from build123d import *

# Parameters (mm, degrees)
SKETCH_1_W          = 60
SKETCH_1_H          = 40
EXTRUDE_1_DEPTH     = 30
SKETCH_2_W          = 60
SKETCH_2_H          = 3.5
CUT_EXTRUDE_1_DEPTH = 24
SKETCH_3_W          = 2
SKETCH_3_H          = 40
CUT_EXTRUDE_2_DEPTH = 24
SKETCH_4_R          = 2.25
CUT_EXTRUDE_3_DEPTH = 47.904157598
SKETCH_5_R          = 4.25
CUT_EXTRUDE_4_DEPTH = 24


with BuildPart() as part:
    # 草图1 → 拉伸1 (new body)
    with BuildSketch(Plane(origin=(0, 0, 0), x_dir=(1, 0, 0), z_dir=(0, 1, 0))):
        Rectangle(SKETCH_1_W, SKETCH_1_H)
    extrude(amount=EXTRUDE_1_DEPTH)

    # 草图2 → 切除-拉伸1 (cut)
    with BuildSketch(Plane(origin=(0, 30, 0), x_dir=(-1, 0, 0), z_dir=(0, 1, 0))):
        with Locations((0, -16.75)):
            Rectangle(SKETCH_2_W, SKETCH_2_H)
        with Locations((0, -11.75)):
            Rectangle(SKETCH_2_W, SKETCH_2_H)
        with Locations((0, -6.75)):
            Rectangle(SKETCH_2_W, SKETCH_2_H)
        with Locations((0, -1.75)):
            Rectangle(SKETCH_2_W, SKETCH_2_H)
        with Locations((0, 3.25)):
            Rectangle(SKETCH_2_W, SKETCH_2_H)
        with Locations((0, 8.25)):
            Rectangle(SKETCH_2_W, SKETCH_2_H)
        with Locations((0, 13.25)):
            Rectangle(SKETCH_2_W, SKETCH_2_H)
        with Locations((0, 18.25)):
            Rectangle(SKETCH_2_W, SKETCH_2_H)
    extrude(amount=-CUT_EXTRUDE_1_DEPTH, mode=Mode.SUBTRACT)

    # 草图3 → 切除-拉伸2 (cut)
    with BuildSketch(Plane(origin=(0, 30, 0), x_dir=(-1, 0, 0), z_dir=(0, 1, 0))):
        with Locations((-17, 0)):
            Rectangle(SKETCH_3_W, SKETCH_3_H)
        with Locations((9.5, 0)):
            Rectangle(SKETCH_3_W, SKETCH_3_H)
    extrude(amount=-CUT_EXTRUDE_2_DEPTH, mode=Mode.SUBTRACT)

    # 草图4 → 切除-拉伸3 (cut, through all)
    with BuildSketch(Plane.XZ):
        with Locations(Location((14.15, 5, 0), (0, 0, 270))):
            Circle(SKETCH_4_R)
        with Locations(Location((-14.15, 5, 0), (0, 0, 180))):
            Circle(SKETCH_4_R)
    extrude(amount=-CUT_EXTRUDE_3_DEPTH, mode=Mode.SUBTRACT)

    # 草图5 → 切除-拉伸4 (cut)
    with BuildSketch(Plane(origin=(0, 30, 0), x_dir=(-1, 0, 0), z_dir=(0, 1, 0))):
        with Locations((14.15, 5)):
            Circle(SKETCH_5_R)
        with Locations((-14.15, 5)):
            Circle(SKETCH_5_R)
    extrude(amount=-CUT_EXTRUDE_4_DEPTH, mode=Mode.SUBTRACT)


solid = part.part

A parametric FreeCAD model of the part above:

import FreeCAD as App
import Part
import Sketcher
from FreeCAD import Vector


def add_polygon(sketch, points):
    """Adds a closed chain of lines whose ends are joined by coincident constraints."""
    first, n = sketch.GeometryCount, len(points)
    for a, b in zip(points, points[1:] + points[:1]):
        sketch.addGeometry(Part.LineSegment(App.Vector(*a, 0), App.Vector(*b, 0)), False)
    for i in range(n):
        sketch.addConstraint(Sketcher.Constraint("Coincident", first + i, 2, first + (i + 1) % n, 1))

doc = App.newDocument("Part")
params = doc.addObject("Spreadsheet::Sheet", "Params")
for row, (alias, value) in enumerate([
    ("sketch1_width", "60 mm"),
    ("sketch1_height", "40 mm"),
    ("pad1_length", "30 mm"),
    ("sketch2_width", "60 mm"),
    ("sketch2_height", "3.5 mm"),
    ("pocket1_length", "24 mm"),
    ("sketch3_width", "2 mm"),
    ("sketch3_height", "40 mm"),
    ("pocket2_length", "24 mm"),
    ("sketch4_diameter", "4.5 mm"),
    ("sketch5_diameter", "8.5 mm"),
    ("pocket4_length", "24 mm"),
], start=1):
    params.set(f"A{row}", alias)
    params.set(f"B{row}", "=" + value)
    params.setAlias(f"B{row}", alias)

body = doc.addObject("PartDesign::Body", "Body")

# Sketch on XZ plane
sketch1 = body.newObject("Sketcher::SketchObject", "Sketch")
sketch1.AttachmentSupport = (doc.getObject("XZ_Plane"), [""])
sketch1.MapMode = "FlatFace"
add_polygon(sketch1, [(-30, -20), (-30, 20), (30, 20), (30, -20)])  # lines 0-3
sketch1.addConstraint([
    Sketcher.Constraint("Vertical", 0),
    Sketcher.Constraint("Horizontal", 1),
    Sketcher.Constraint("Vertical", 2),
    Sketcher.Constraint("Horizontal", 3),
    Sketcher.Constraint("Symmetric", 0, 2, 2, 2, -1, 1),
    Sketcher.Constraint("DistanceX", 1, 1, 1, 2, 60.0),
    Sketcher.Constraint("DistanceY", 0, 1, 0, 2, 40.0),
])
sketch1.setExpression("Constraints[9]", "Params.sketch1_width")
sketch1.setExpression("Constraints[10]", "Params.sketch1_height")
pad1 = body.newObject("PartDesign::Pad", "Pad")
pad1.Profile = sketch1
pad1.setExpression("Length", "Params.pad1_length")
pad1.Reversed = True

# Sketch on XZ plane
sketch2 = body.newObject("Sketcher::SketchObject", "Sketch001")
sketch2.AttachmentSupport = (doc.getObject("XZ_Plane"), [""])
sketch2.MapMode = "FlatFace"
sketch2.AttachmentOffset = App.Placement(Vector(0, 0, -30), App.Rotation())
add_polygon(sketch2, [(30, -15), (30, -18.5), (-30, -18.5), (-30, -15)])  # lines 0-3
add_polygon(sketch2, [(30, -10), (30, -13.5), (-30, -13.5), (-30, -10)])  # lines 4-7
add_polygon(sketch2, [(30, -5), (30, -8.5), (-30, -8.5), (-30, -5)])  # lines 8-11
add_polygon(sketch2, [(30, 0), (30, -3.5), (-30, -3.5), (-30, 0)])  # lines 12-15
add_polygon(sketch2, [(30, 5), (30, 1.5), (-30, 1.5), (-30, 5)])  # lines 16-19
add_polygon(sketch2, [(30, 10), (30, 6.5), (-30, 6.5), (-30, 10)])  # lines 20-23
add_polygon(sketch2, [(30, 15), (30, 11.5), (-30, 11.5), (-30, 15)])  # lines 24-27
add_polygon(sketch2, [(30, 20), (30, 16.5), (-30, 16.5), (-30, 20)])  # lines 28-31
sketch2.addConstraint([
    Sketcher.Constraint("Vertical", 0),
    Sketcher.Constraint("Horizontal", 1),
    Sketcher.Constraint("Vertical", 2),
    Sketcher.Constraint("Horizontal", 3),
    Sketcher.Constraint("Vertical", 4),
    Sketcher.Constraint("Horizontal", 5),
    Sketcher.Constraint("Vertical", 6),
    Sketcher.Constraint("Horizontal", 7),
    Sketcher.Constraint("Vertical", 8),
    Sketcher.Constraint("Horizontal", 9),
    Sketcher.Constraint("Vertical", 10),
    Sketcher.Constraint("Horizontal", 11),
    Sketcher.Constraint("Vertical", 12),
    Sketcher.Constraint("Horizontal", 13),
    Sketcher.Constraint("Vertical", 14),
    Sketcher.Constraint("Horizontal", 15),
    Sketcher.Constraint("Vertical", 16),
    Sketcher.Constraint("Horizontal", 17),
    Sketcher.Constraint("Vertical", 18),
    Sketcher.Constraint("Horizontal", 19),
    Sketcher.Constraint("Vertical", 20),
    Sketcher.Constraint("Horizontal", 21),
    Sketcher.Constraint("Vertical", 22),
    Sketcher.Constraint("Horizontal", 23),
    Sketcher.Constraint("Vertical", 24),
    Sketcher.Constraint("Horizontal", 25),
    Sketcher.Constraint("Vertical", 26),
    Sketcher.Constraint("Horizontal", 27),
    Sketcher.Constraint("Vertical", 28),
    Sketcher.Constraint("Horizontal", 29),
    Sketcher.Constraint("Vertical", 30),
    Sketcher.Constraint("Horizontal", 31),
    Sketcher.Constraint("Symmetric", 14, 2, 15, 2, -1, 1),
    Sketcher.Constraint("Symmetric", 11, 2, 18, 2, -1, 1),
    Sketcher.Constraint("Symmetric", 7, 2, 22, 2, -1, 1),
    Sketcher.Constraint("Symmetric", 3, 2, 26, 2, -1, 1),
    Sketcher.Constraint("Vertical", 3, 2, 4, 2),
    Sketcher.Constraint("Vertical", 2, 2, 5, 2),
    Sketcher.Constraint("Vertical", 7, 2, 8, 2),
    Sketcher.Constraint("Vertical", 6, 2, 9, 2),
    Sketcher.Constraint("Vertical", 11, 2, 12, 2),
    Sketcher.Constraint("Vertical", 10, 2, 13, 2),
    Sketcher.Constraint("Vertical", 15, 2, 16, 2),
    Sketcher.Constraint("Vertical", 19, 2, 20, 2),
    Sketcher.Constraint("Vertical", 23, 2, 24, 2),
    Sketcher.Constraint("Vertical", 27, 2, 28, 2),
    Sketcher.Constraint("Vertical", 26, 2, 29, 2),
    Sketcher.Constraint("Equal", 2, 4),
    Sketcher.Constraint("Equal", 6, 8),
    Sketcher.Constraint("Equal", 10, 12),
    Sketcher.Constraint("Equal", 14, 16),
    Sketcher.Constraint("Equal", 18, 20),
    Sketcher.Constraint("Equal", 22, 24),
    Sketcher.Constraint("Equal", 26, 28),
    Sketcher.Constraint("DistanceX", 1, 2, 1, 1, 60.0),
    Sketcher.Constraint("DistanceY", 0, 2, 0, 1, 3.5),
    Sketcher.Constraint("DistanceY", 2, 2, -1, 1, 15.0),
    Sketcher.Constraint("DistanceY", 6, 2, -1, 1, 10.0),
    Sketcher.Constraint("DistanceY", 10, 2, -1, 1, 5.0),
    Sketcher.Constraint("DistanceY", -1, 1, 30, 2, 20.0),
])
sketch2.setExpression("Constraints[86]", "Params.sketch2_width")
sketch2.setExpression("Constraints[87]", "Params.sketch2_height")
pocket1 = body.newObject("PartDesign::Pocket", "Pocket")
pocket1.Profile = sketch2
pocket1.setExpression("Length", "Params.pocket1_length")
pocket1.Reversed = True

# Sketch on XZ plane
sketch3 = body.newObject("Sketcher::SketchObject", "Sketch002")
sketch3.AttachmentSupport = (doc.getObject("XZ_Plane"), [""])
sketch3.MapMode = "FlatFace"
sketch3.AttachmentOffset = App.Placement(Vector(0, 0, -30), App.Rotation())
add_polygon(sketch3, [(18, 20), (18, -20), (16, -20), (16, 20)])  # lines 0-3
add_polygon(sketch3, [(-8.5, 20), (-8.5, -20), (-10.5, -20), (-10.5, 20)])  # lines 4-7
sketch3.addConstraint([
    Sketcher.Constraint("Vertical", 0),
    Sketcher.Constraint("Horizontal", 1),
    Sketcher.Constraint("Vertical", 2),
    Sketcher.Constraint("Horizontal", 3),
    Sketcher.Constraint("Vertical", 4),
    Sketcher.Constraint("Horizontal", 5),
    Sketcher.Constraint("Vertical", 6),
    Sketcher.Constraint("Horizontal", 7),
    Sketcher.Constraint("Horizontal", 1, 2, 4, 2),
    Sketcher.Constraint("Horizontal", 3, 2, 6, 2),
    Sketcher.Constraint("Equal", 3, 5),
    Sketcher.Constraint("DistanceX", 1, 2, 1, 1, 2.0),
    Sketcher.Constraint("DistanceY", 0, 2, 0, 1, 40.0),
    Sketcher.Constraint("DistanceX", -1, 1, 0, 2, 18.0),
    Sketcher.Constraint("DistanceY", 0, 2, -1, 1, 20.0),
    Sketcher.Constraint("DistanceX", 4, 2, -1, 1, 8.5),
])
sketch3.setExpression("Constraints[19]", "Params.sketch3_width")
sketch3.setExpression("Constraints[20]", "Params.sketch3_height")
pocket2 = body.newObject("PartDesign::Pocket", "Pocket001")
pocket2.Profile = sketch3
pocket2.setExpression("Length", "Params.pocket2_length")
pocket2.Reversed = True

# Sketch on XZ plane
sketch4 = body.newObject("Sketcher::SketchObject", "Sketch003")
sketch4.AttachmentSupport = (doc.getObject("XZ_Plane"), [""])
sketch4.MapMode = "FlatFace"
sketch4.addGeometry([
    Part.Circle(Vector(14.15, 5, 0), Vector(0, 0, 1), 2.25),
    Part.Circle(Vector(-14.15, 5, 0), Vector(0, 0, 1), 2.25),
], False)
sketch4.addConstraint([
    Sketcher.Constraint("Equal", 0, 1),
    Sketcher.Constraint("Symmetric", 0, 3, 1, 3, -2),
    Sketcher.Constraint("Diameter", 0, 4.5),
    Sketcher.Constraint("DistanceY", -1, 1, 0, 3, 5.0),
    Sketcher.Constraint("DistanceX", 1, 3, 0, 3, 28.3),
])
sketch4.setExpression("Constraints[2]", "Params.sketch4_diameter")
pocket3 = body.newObject("PartDesign::Pocket", "Pocket002")
pocket3.Profile = sketch4
pocket3.Type = "ThroughAll"

# Sketch on XZ plane
sketch5 = body.newObject("Sketcher::SketchObject", "Sketch004")
sketch5.AttachmentSupport = (doc.getObject("XZ_Plane"), [""])
sketch5.MapMode = "FlatFace"
sketch5.AttachmentOffset = App.Placement(Vector(0, 0, -30), App.Rotation())
sketch5.addGeometry([
    Part.Circle(Vector(-14.15, 5, 0), Vector(0, 0, 1), 4.25),
    Part.Circle(Vector(14.15, 5, 0), Vector(0, 0, 1), 4.25),
], False)
sketch5.addConstraint([
    Sketcher.Constraint("Equal", 0, 1),
    Sketcher.Constraint("Symmetric", 0, 3, 1, 3, -2),
    Sketcher.Constraint("Diameter", 0, 8.5),
    Sketcher.Constraint("DistanceY", -1, 1, 0, 3, 5.0),
    Sketcher.Constraint("DistanceX", 0, 3, 1, 3, 28.3),
])
sketch5.setExpression("Constraints[2]", "Params.sketch5_diameter")
pocket4 = body.newObject("PartDesign::Pocket", "Pocket003")
pocket4.Profile = sketch5
pocket4.setExpression("Length", "Params.pocket4_length")
pocket4.Reversed = True

doc.recompute()
